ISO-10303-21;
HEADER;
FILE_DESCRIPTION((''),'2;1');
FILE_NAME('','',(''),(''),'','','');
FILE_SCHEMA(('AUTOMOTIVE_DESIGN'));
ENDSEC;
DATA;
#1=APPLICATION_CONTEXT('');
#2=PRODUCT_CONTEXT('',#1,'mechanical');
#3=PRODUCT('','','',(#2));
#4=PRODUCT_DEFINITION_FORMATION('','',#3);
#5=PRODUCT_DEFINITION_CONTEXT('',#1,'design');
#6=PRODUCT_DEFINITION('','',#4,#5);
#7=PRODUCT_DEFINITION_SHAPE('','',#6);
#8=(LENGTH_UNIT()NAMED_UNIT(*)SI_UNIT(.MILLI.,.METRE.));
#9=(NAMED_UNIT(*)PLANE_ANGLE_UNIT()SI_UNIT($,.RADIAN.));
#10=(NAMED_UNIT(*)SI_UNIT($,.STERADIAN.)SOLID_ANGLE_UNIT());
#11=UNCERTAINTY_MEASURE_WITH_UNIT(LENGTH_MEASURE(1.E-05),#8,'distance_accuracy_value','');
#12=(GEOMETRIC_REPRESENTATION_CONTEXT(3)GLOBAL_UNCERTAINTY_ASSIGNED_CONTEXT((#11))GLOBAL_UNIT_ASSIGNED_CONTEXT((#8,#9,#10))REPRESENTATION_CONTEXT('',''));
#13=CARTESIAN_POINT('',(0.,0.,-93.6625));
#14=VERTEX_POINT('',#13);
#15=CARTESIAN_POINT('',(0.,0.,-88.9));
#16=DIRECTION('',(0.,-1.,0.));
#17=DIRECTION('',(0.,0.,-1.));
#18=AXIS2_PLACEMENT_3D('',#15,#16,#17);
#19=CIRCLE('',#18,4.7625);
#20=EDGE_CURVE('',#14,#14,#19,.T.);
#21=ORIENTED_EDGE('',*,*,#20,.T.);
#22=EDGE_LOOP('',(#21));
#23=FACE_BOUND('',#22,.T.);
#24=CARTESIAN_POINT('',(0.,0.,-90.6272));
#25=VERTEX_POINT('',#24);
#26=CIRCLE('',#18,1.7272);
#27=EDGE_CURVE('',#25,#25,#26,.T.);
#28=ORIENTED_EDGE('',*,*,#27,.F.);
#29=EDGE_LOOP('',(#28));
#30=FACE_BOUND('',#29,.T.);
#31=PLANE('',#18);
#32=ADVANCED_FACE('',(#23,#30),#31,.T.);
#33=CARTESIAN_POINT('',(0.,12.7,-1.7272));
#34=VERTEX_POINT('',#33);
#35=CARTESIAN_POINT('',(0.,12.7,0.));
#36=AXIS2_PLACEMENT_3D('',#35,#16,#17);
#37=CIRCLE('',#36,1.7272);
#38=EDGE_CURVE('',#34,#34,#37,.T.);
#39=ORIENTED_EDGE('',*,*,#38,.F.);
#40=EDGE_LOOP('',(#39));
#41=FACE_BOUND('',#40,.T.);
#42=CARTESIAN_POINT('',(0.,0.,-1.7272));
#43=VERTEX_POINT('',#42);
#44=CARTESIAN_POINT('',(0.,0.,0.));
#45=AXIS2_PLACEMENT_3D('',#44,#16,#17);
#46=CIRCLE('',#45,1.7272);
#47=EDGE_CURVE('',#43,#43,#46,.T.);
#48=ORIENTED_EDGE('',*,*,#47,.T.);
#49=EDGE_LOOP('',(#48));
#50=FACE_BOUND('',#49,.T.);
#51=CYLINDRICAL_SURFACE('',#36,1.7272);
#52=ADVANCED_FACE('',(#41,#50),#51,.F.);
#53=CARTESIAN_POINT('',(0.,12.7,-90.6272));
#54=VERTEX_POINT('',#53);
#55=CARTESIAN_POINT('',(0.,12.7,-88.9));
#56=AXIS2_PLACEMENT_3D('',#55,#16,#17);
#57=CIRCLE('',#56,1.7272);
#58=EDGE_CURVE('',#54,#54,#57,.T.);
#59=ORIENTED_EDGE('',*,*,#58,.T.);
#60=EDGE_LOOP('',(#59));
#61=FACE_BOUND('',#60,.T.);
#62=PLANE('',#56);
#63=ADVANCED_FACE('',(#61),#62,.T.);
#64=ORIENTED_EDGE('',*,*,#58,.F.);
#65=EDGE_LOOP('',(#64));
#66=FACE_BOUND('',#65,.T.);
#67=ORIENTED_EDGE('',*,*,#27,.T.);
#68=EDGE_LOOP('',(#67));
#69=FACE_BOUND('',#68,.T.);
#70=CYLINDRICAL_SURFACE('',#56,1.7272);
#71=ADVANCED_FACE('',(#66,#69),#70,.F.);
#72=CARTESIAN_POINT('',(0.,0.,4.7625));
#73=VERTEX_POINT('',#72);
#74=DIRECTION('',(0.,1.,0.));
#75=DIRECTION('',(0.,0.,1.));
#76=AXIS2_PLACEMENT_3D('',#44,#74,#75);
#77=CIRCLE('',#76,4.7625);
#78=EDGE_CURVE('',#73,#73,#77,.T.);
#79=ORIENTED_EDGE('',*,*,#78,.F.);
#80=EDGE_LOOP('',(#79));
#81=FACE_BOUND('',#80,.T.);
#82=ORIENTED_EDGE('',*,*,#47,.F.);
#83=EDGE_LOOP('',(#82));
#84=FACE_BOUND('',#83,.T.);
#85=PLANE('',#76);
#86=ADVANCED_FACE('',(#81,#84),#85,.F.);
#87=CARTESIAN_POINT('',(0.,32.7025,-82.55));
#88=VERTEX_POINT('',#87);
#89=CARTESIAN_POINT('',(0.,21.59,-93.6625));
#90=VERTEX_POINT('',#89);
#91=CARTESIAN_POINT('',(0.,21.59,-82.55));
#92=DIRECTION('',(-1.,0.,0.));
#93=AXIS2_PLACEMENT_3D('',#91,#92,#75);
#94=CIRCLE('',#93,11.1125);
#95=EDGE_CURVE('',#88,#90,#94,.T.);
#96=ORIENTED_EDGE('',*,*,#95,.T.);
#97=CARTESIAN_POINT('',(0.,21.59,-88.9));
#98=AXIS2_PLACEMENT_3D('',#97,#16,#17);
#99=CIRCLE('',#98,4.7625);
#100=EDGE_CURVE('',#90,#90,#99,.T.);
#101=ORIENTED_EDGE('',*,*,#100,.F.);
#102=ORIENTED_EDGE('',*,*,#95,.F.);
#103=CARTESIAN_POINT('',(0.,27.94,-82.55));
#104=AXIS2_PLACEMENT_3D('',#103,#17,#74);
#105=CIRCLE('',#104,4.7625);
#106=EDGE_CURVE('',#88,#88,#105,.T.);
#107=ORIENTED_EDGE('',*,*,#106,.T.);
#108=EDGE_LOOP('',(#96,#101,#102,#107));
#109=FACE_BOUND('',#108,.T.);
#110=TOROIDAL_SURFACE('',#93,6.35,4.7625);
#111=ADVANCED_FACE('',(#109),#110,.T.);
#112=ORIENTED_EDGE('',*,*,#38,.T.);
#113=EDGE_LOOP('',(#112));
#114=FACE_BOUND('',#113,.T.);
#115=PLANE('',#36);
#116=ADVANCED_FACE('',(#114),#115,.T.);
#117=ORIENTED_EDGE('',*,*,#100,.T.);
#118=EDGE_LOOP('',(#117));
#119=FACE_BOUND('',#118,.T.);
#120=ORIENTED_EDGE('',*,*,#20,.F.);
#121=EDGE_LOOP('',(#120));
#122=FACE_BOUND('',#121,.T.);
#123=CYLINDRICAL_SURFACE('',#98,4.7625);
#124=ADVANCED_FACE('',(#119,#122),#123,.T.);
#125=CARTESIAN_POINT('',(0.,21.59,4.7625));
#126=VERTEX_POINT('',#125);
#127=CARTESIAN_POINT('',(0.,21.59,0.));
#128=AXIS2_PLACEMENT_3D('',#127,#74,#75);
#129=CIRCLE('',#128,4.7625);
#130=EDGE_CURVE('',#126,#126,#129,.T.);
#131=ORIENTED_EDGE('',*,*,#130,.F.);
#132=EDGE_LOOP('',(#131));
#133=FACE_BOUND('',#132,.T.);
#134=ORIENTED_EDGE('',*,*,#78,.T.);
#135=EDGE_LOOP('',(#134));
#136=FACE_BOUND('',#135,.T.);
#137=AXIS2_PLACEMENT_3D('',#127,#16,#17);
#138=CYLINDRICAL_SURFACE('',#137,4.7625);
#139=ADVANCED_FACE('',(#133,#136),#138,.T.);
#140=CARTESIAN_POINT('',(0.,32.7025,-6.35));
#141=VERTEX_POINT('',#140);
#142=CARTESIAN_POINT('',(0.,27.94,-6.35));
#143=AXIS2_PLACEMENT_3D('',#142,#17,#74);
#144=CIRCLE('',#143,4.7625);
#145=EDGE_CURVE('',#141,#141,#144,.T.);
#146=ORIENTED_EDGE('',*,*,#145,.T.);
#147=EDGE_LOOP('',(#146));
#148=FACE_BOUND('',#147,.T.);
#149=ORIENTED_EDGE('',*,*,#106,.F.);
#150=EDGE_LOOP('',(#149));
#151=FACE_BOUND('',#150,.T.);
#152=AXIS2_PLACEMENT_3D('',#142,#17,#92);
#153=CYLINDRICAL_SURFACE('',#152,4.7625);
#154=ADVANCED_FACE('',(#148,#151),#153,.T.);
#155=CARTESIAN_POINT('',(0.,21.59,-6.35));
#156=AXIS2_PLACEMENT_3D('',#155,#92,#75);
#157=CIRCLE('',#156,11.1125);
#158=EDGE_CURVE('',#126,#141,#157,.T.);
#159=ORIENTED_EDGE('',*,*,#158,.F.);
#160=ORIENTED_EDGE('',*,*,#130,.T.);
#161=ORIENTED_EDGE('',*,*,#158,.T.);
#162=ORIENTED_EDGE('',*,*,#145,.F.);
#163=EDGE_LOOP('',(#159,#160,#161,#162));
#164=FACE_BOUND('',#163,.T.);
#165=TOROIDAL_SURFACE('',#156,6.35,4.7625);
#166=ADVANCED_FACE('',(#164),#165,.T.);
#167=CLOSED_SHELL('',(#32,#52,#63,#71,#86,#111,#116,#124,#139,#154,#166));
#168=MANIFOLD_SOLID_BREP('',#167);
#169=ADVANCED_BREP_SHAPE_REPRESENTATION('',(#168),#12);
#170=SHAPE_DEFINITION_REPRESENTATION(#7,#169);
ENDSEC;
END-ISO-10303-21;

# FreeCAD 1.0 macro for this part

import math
import FreeCAD as App
import Part
import Sketcher

V = App.Vector
Q = App.Units.Quantity

doc = App.newDocument("Part")
body = doc.addObject("PartDesign::Body", "Body")

sketch1 = body.newObject("Sketcher::SketchObject", "Sketch")
sketch1.AttachmentSupport = (doc.getObject("XZ_Plane"), [""])
sketch1.MapMode = "FlatFace"
sketch1.addGeometry(Part.Circle(V(0, 0, 0), V(0, 0, 1), 4.8), False)
sketch1.addConstraint([
    Sketcher.Constraint("Coincident", 0, 3, -1, 1),
    Sketcher.Constraint("Diameter", 0, Q("0.375 in")),
])

sketch2 = body.newObject("Sketcher::SketchObject", "Sketch001")
sketch2.AttachmentSupport = (doc.getObject("YZ_Plane"), [""])
sketch2.MapMode = "FlatFace"
sketch2.addGeometry([
    Part.LineSegment(V(0, 0, 0), V(22, 0, 0)),
    Part.ArcOfCircle(Part.Circle(V(22, -6, 0), V(0, 0, 1), 6), math.radians(0), math.radians(90)),
    Part.LineSegment(V(28, -6, 0), V(28, -83, 0)),
    Part.ArcOfCircle(Part.Circle(V(22, -83, 0), V(0, 0, 1), 6), math.radians(-90), math.radians(0)),
    Part.LineSegment(V(22, -89, 0), V(0, -89, 0)),
], False)
sketch2.addConstraint([
    Sketcher.Constraint("Tangent", 0, 2, 1, 2),
    Sketcher.Constraint("Tangent", 1, 1, 2, 1),
    Sketcher.Constraint("Tangent", 2, 2, 3, 2),
    Sketcher.Constraint("Tangent", 3, 1, 4, 1),
    Sketcher.Constraint("Horizontal", 0),
    Sketcher.Constraint("Vertical", 2),
    Sketcher.Constraint("Horizontal", 4),
    Sketcher.Constraint("Coincident", 0, 1, -1, 1),
    Sketcher.Constraint("Equal", 1, 3),
    Sketcher.Constraint("PointOnObject", 4, 2, -2),
    Sketcher.Constraint("DistanceY", 2, 2, 2, 1, Q("3 in")),
    Sketcher.Constraint("Radius", 1, Q("0.25 in")),
    Sketcher.Constraint("DistanceX", 0, 1, 0, 2, Q("0.85 in")),
])
doc.recompute()

additivepipe = body.newObject("PartDesign::AdditivePipe", "AdditivePipe")
additivepipe.Profile = sketch1
additivepipe.Spine = (sketch2, ["Edge1", "Edge2", "Edge3", "Edge4", "Edge5"])

sketch3 = body.newObject("Sketcher::SketchObject", "Sketch002")
sketch3.AttachmentSupport = (doc.getObject("XZ_Plane"), [""])
sketch3.MapMode = "FlatFace"
sketch3.addGeometry([
    Part.Circle(V(0, 0, 0), V(0, 0, 1), 1.7),
    Part.Circle(V(0, -88.9, 0), V(0, 0, 1), 1.7),
], False)
sketch3.addConstraint([
    Sketcher.Constraint("Coincident", 0, 3, -1, 1),
    Sketcher.Constraint("Equal", 0, 1),
    Sketcher.Constraint("PointOnObject", 1, 3, -2),
    Sketcher.Constraint("Diameter", 0, Q("0.136 in")),
    Sketcher.Constraint("DistanceY", 1, 3, -1, 1, Q("3.5 in")),
])
pocket1 = body.newObject("PartDesign::Pocket", "Pocket")
pocket1.Profile = sketch3
pocket1.Length = Q("0.5 in")

doc.recompute()
